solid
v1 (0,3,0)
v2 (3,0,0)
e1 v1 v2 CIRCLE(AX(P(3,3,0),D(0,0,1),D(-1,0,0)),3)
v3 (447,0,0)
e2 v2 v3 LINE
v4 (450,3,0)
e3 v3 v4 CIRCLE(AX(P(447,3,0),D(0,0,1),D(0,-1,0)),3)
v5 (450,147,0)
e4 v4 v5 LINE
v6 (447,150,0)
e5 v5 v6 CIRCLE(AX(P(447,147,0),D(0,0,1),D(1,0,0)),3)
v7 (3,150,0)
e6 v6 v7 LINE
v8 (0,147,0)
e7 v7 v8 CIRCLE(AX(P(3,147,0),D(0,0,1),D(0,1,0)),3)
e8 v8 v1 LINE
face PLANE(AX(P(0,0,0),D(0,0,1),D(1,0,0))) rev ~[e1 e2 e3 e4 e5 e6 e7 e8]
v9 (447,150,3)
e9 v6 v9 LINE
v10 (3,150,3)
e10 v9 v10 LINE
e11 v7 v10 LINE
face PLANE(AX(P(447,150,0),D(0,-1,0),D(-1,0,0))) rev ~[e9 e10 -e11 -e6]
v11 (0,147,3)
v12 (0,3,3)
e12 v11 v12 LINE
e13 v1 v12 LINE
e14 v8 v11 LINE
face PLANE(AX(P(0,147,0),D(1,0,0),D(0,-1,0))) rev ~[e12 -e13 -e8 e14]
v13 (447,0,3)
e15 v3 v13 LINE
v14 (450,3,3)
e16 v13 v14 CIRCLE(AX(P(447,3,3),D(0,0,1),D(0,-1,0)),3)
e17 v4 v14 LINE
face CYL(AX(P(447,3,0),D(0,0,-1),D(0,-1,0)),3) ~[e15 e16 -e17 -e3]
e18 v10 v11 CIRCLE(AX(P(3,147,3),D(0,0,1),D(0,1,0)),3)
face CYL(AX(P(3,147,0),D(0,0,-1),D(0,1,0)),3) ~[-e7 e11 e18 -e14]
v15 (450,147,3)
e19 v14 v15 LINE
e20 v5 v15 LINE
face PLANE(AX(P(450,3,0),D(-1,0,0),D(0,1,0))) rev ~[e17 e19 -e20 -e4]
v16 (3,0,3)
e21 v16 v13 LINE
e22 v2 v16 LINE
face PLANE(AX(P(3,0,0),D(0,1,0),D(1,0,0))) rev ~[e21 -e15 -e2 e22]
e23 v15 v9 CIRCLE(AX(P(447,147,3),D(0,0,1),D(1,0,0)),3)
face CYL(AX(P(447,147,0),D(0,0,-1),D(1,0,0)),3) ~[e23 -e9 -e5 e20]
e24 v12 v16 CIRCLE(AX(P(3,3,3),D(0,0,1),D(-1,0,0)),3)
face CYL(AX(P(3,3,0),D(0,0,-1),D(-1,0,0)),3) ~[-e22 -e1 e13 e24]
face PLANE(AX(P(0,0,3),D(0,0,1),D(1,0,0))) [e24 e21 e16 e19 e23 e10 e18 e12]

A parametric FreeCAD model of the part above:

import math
import FreeCAD as App
import Part
import Sketcher

V = App.Vector
Q = App.Units.Quantity

doc = App.newDocument("Part")
params = doc.addObject("Spreadsheet::Sheet", "Params")
for row, (alias, value) in enumerate([
    ("sketch1_radius", "3 mm"),
    ("pad1_length", "3 mm"),
], start=1):
    params.set(f"A{row}", alias)
    params.set(f"B{row}", "=" + value)
    params.setAlias(f"B{row}", alias)

body = doc.addObject("PartDesign::Body", "Body")

# Sketch on XY plane
sketch1 = body.newObject("Sketcher::SketchObject", "Sketch")
sketch1.AttachmentSupport = (doc.getObject("XY_Plane"), [""])
sketch1.MapMode = "FlatFace"
sketch1.addGeometry([
    Part.ArcOfCircle(Part.Circle(V(3, 3, 0), V(0, 0, 1), 3), math.radians(180), math.radians(270)),  # 0
    Part.LineSegment(V(3, 0, 0), V(447, 0, 0)),  # 1
    Part.ArcOfCircle(Part.Circle(V(447, 3, 0), V(0, 0, 1), 3), math.radians(-90), math.radians(0)),  # 2
    Part.LineSegment(V(450, 3, 0), V(450, 147, 0)),  # 3
    Part.ArcOfCircle(Part.Circle(V(447, 147, 0), V(0, 0, 1), 3), math.radians(0), math.radians(90)),  # 4
    Part.LineSegment(V(447, 150, 0), V(3, 150, 0)),  # 5
    Part.ArcOfCircle(Part.Circle(V(3, 147, 0), V(0, 0, 1), 3), math.radians(90), math.radians(180)),  # 6
    Part.LineSegment(V(0, 147, 0), V(0, 3, 0)),  # 7
], False)
sketch1.addConstraint([
    Sketcher.Constraint("Tangent", 0, 2, 1, 1),
    Sketcher.Constraint("Tangent", 1, 2, 2, 1),
    Sketcher.Constraint("Tangent", 2, 2, 3, 1),
    Sketcher.Constraint("Tangent", 3, 2, 4, 1),
    Sketcher.Constraint("Tangent", 4, 2, 5, 1),
    Sketcher.Constraint("Tangent", 5, 2, 6, 1),
    Sketcher.Constraint("Tangent", 6, 2, 7, 1),
    Sketcher.Constraint("Tangent", 7, 2, 0, 1),
    Sketcher.Constraint("Horizontal", 1),
    Sketcher.Constraint("Vertical", 3),
    Sketcher.Constraint("Horizontal", 5),
    Sketcher.Constraint("Vertical", 7),
    Sketcher.Constraint("Equal", 0, 2),
    Sketcher.Constraint("Equal", 2, 4),
    Sketcher.Constraint("Equal", 4, 6),
    Sketcher.Constraint("PointOnObject", 0, 2, -1),
    Sketcher.Constraint("PointOnObject", 6, 2, -2),
    Sketcher.Constraint("Radius", 0, Q("3 mm")),
    Sketcher.Constraint("DistanceX", -1, 1, 2, 2, Q("450 mm")),
    Sketcher.Constraint("DistanceY", -1, 1, 4, 2, Q("150 mm")),
])
sketch1.setExpression("Constraints[17]", "Params.sketch1_radius")
pad1 = body.newObject("PartDesign::Pad", "Pad")
pad1.Profile = sketch1
pad1.setExpression("Length", "Params.pad1_length")

doc.recompute()
